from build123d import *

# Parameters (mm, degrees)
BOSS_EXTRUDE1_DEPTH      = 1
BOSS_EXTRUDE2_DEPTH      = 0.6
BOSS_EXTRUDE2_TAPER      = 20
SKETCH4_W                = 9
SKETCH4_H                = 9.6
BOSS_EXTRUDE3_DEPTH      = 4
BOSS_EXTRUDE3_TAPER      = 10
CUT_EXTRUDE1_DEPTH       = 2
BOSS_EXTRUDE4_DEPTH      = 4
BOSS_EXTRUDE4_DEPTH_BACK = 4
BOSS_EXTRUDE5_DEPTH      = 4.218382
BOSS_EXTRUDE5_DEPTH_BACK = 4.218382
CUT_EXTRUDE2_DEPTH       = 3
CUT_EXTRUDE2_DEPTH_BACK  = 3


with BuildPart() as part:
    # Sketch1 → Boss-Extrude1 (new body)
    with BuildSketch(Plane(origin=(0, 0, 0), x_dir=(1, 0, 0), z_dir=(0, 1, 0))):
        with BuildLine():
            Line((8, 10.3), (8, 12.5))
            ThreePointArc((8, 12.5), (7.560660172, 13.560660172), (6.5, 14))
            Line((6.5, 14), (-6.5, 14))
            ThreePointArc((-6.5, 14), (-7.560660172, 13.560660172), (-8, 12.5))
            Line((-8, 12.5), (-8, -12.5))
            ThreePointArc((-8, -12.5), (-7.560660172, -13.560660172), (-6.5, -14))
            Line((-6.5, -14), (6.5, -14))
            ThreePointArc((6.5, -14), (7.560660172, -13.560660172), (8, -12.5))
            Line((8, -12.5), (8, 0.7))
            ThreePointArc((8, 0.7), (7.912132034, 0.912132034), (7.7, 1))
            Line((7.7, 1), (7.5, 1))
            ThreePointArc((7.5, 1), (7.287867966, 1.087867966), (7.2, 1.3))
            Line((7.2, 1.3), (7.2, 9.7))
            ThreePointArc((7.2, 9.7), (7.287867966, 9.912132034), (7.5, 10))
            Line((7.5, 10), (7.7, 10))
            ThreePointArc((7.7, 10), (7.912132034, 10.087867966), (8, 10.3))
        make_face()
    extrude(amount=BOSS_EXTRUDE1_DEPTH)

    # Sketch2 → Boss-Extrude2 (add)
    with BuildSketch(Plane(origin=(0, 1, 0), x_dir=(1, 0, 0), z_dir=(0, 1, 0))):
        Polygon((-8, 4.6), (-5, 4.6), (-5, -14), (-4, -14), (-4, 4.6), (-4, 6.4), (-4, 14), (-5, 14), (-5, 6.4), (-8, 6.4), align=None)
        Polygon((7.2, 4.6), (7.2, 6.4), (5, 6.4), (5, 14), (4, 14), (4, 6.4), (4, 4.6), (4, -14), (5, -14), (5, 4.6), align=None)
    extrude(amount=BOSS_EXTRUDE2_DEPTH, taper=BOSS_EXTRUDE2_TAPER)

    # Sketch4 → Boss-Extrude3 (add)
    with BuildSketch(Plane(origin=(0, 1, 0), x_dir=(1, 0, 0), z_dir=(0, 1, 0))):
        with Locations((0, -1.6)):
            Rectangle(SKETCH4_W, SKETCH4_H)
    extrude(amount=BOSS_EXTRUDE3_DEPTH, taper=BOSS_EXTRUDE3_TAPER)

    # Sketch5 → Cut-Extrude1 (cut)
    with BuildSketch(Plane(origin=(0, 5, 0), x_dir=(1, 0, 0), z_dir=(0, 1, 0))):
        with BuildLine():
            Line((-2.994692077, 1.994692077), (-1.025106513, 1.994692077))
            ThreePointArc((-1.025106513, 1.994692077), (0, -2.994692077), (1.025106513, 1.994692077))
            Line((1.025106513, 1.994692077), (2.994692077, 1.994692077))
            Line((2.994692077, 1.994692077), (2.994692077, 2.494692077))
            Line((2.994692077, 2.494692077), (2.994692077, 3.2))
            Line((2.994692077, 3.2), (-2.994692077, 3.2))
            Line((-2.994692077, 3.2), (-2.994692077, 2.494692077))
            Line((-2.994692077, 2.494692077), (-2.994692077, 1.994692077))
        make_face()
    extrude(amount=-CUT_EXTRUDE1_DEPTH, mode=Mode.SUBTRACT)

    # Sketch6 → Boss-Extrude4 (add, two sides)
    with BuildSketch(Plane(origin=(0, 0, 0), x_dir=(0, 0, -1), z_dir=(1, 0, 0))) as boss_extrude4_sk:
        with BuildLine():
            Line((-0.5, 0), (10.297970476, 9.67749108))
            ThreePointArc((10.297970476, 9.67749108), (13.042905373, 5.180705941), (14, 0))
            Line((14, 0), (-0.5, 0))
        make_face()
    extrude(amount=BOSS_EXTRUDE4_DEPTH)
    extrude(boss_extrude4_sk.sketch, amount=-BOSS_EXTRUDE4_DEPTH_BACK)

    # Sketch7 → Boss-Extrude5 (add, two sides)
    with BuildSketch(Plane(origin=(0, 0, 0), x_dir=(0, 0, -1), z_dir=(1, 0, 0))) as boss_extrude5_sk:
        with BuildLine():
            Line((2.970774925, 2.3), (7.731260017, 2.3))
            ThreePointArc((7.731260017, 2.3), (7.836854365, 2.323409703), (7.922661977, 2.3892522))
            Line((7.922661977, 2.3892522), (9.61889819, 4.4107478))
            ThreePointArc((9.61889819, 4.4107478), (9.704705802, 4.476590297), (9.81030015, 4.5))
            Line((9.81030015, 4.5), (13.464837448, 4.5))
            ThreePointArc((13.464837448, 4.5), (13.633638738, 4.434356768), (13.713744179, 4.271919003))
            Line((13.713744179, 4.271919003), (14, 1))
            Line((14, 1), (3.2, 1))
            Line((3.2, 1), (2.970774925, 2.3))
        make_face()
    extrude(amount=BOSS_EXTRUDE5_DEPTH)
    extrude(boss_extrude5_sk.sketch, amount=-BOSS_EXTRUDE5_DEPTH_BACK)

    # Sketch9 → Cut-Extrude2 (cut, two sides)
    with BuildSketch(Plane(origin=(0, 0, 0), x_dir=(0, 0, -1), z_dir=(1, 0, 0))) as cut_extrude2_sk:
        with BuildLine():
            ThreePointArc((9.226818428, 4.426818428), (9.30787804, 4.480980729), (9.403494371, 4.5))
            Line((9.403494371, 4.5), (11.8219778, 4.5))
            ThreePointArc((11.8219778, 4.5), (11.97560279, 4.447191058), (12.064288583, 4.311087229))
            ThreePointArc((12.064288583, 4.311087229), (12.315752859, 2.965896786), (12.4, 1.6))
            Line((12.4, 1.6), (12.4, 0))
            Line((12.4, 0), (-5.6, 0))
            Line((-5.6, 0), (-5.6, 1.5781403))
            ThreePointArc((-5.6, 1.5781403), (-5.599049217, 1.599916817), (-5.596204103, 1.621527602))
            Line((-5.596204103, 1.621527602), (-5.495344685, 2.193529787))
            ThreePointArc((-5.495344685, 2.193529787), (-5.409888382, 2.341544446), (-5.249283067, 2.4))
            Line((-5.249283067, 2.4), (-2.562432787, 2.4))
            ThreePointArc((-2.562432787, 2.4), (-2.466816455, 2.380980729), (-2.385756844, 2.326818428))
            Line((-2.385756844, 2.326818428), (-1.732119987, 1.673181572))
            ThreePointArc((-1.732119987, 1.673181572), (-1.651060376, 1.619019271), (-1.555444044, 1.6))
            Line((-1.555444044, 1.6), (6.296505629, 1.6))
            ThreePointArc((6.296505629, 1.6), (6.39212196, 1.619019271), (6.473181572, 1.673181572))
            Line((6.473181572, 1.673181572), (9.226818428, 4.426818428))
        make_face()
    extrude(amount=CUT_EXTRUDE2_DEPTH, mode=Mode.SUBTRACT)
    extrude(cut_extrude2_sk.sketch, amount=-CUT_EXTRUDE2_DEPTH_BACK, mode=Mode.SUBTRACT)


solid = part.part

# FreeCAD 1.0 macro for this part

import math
import FreeCAD as App
import Part
import Sketcher
Q = App.Units.Quantity


def add_polygon(sketch, points):
    """Adds a closed chain of lines whose ends are joined by coincident constraints."""
    first, n = sketch.GeometryCount, len(points)
    for a, b in zip(points, points[1:] + points[:1]):
        sketch.addGeometry(Part.LineSegment(App.Vector(*a, 0), App.Vector(*b, 0)), False)
    for i in range(n):
        sketch.addConstraint(Sketcher.Constraint("Coincident", first + i, 2, first + (i + 1) % n, 1))

doc = App.newDocument("Part")
body = doc.addObject("PartDesign::Body", "Body")

sketch1 = doc.addObject("Sketcher::SketchObject", "Sketch")
body.addObject(sketch1)
sketch1.AttachmentSupport = (doc.XZ_Plane, [""])
sketch1.MapMode = "FlatFace"
sketch1.addGeometry([
    Part.LineSegment(App.Vector(8, -10.3, 0), App.Vector(8, -12.5, 0)),
    Part.ArcOfCircle(Part.Circle(App.Vector(6.5, -12.5, 0), App.Vector(0, 0, 1), 1.5), math.radians(-90), math.radians(0)),
    Part.LineSegment(App.Vector(6.5, -14, 0), App.Vector(-6.5, -14, 0)),
    Part.ArcOfCircle(Part.Circle(App.Vector(-6.5, -12.5, 0), App.Vector(0, 0, 1), 1.5), math.radians(180), math.radians(270)),
    Part.LineSegment(App.Vector(-8, -12.5, 0), App.Vector(-8, 12.5, 0)),
    Part.ArcOfCircle(Part.Circle(App.Vector(-6.5, 12.5, 0), App.Vector(0, 0, 1), 1.5), math.radians(90), math.radians(180)),
    Part.LineSegment(App.Vector(-6.5, 14, 0), App.Vector(6.5, 14, 0)),
    Part.ArcOfCircle(Part.Circle(App.Vector(6.5, 12.5, 0), App.Vector(0, 0, 1), 1.5), math.radians(0), math.radians(90)),
    Part.LineSegment(App.Vector(8, 12.5, 0), App.Vector(8, -0.7, 0)),
    Part.ArcOfCircle(Part.Circle(App.Vector(7.7, -0.7, 0), App.Vector(0, 0, 1), 0.3), math.radians(-90), math.radians(0)),
    Part.LineSegment(App.Vector(7.7, -1, 0), App.Vector(7.5, -1, 0)),
    Part.ArcOfCircle(Part.Circle(App.Vector(7.5, -1.3, 0), App.Vector(0, 0, 1), 0.3), math.radians(90), math.radians(180)),
    Part.LineSegment(App.Vector(7.2, -1.3, 0), App.Vector(7.2, -9.7, 0)),
    Part.ArcOfCircle(Part.Circle(App.Vector(7.5, -9.7, 0), App.Vector(0, 0, 1), 0.3), math.radians(-180), math.radians(-90)),
    Part.LineSegment(App.Vector(7.5, -10, 0), App.Vector(7.7, -10, 0)),
    Part.ArcOfCircle(Part.Circle(App.Vector(7.7, -10.3, 0), App.Vector(0, 0, 1), 0.3), math.radians(0), math.radians(90)),
], False)
sketch1.addConstraint([
    Sketcher.Constraint("Tangent", 0, 2, 1, 2),
    Sketcher.Constraint("Tangent", 1, 1, 2, 1),
    Sketcher.Constraint("Tangent", 2, 2, 3, 2),
    Sketcher.Constraint("Tangent", 3, 1, 4, 1),
    Sketcher.Constraint("Tangent", 4, 2, 5, 2),
    Sketcher.Constraint("Tangent", 5, 1, 6, 1),
    Sketcher.Constraint("Tangent", 6, 2, 7, 2),
    Sketcher.Constraint("Tangent", 7, 1, 8, 1),
    Sketcher.Constraint("Tangent", 8, 2, 9, 2),
    Sketcher.Constraint("Tangent", 9, 1, 10, 1),
    Sketcher.Constraint("Tangent", 10, 2, 11, 1),
    Sketcher.Constraint("Tangent", 11, 2, 12, 1),
    Sketcher.Constraint("Tangent", 12, 2, 13, 1),
    Sketcher.Constraint("Tangent", 13, 2, 14, 1),
    Sketcher.Constraint("Tangent", 14, 2, 15, 2),
    Sketcher.Constraint("Tangent", 15, 1, 0, 1),
    Sketcher.Constraint("Vertical", 0),
    Sketcher.Constraint("Horizontal", 2),
    Sketcher.Constraint("Vertical", 4),
    Sketcher.Constraint("Horizontal", 6),
    Sketcher.Constraint("Vertical", 8),
    Sketcher.Constraint("Horizontal", 10),
    Sketcher.Constraint("Vertical", 12),
    Sketcher.Constraint("Horizontal", 14),
    Sketcher.Constraint("Equal", 1, 3),
    Sketcher.Constraint("Equal", 3, 5),
    Sketcher.Constraint("Equal", 5, 7),
    Sketcher.Constraint("Equal", 9, 11),
    Sketcher.Constraint("Equal", 11, 13),
    Sketcher.Constraint("Equal", 13, 15),
    Sketcher.Constraint("Symmetric", 1, 3, 5, 3, -1, 1),
    Sketcher.Constraint("Vertical", 1, 3, 7, 3),
    Sketcher.Constraint("Radius", 1, Q("1.5 mm")),
    Sketcher.Constraint("Radius", 9, Q("0.3 mm")),
    Sketcher.Constraint("DistanceX", 2, 2, 2, 1, Q("13 mm")),
    Sketcher.Constraint("DistanceY", 4, 1, 4, 2, Q("25 mm")),
    Sketcher.Constraint("DistanceX", 10, 2, 10, 1, Q("0.2 mm")),
    Sketcher.Constraint("DistanceY", 0, 2, 0, 1, Q("2.2 mm")),
    Sketcher.Constraint("DistanceY", 8, 2, 8, 1, Q("13.2 mm")),
])
pad1 = doc.addObject("PartDesign::Pad", "Pad")
body.addObject(pad1)
pad1.Profile = sketch1
pad1.Length = 1
pad1.Reversed = True

sketch2 = doc.addObject("Sketcher::SketchObject", "Sketch001")
body.addObject(sketch2)
sketch2.AttachmentSupport = (doc.XZ_Plane, [""])
sketch2.MapMode = "FlatFace"
sketch2.AttachmentOffset = App.Placement(App.Vector(0, 0, -1), App.Rotation())
add_polygon(sketch2, [(-8, -4.6), (-5, -4.6), (-5, 14), (-4, 14), (-4, -14), (-5, -14), (-5, -6.4), (-8, -6.4)])
add_polygon(sketch2, [(7.2, -4.6), (7.2, -6.4), (5, -6.4), (5, -14), (4, -14), (4, 14), (5, 14), (5, -4.6)])
sketch2.addConstraint([
    Sketcher.Constraint("Horizontal", 0),
    Sketcher.Constraint("Vertical", 1),
    Sketcher.Constraint("Horizontal", 2),
    Sketcher.Constraint("Vertical", 3),
    Sketcher.Constraint("Horizontal", 4),
    Sketcher.Constraint("Vertical", 5),
    Sketcher.Constraint("Horizontal", 6),
    Sketcher.Constraint("Vertical", 7),
    Sketcher.Constraint("Vertical", 8),
    Sketcher.Constraint("Horizontal", 9),
    Sketcher.Constraint("Vertical", 10),
    Sketcher.Constraint("Horizontal", 11),
    Sketcher.Constraint("Vertical", 12),
    Sketcher.Constraint("Horizontal", 13),
    Sketcher.Constraint("Vertical", 14),
    Sketcher.Constraint("Horizontal", 15),
    Sketcher.Constraint("Symmetric", 1, 2, 10, 2, -1, 1),
    Sketcher.Constraint("Symmetric", 3, 2, 12, 2, -1, 1),
    Sketcher.Constraint("Symmetric", 5, 2, 9, 2, -2),
    Sketcher.Constraint("Symmetric", 1, 2, 13, 2, -2),
    Sketcher.Constraint("Horizontal", 7, 2, 14, 2),
    Sketcher.Constraint("DistanceX", 0, 1, 0, 2, Q("3 mm")),
    Sketcher.Constraint("DistanceX", 2, 1, 2, 2, Q("1 mm")),
    Sketcher.Constraint("DistanceY", 3, 2, 3, 1, Q("28 mm")),
    Sketcher.Constraint("DistanceX", 9, 2, 9, 1, Q("2.2 mm")),
    Sketcher.Constraint("DistanceY", 1, 1, 1, 2, Q("18.6 mm")),
    Sketcher.Constraint("DistanceY", 5, 1, 5, 2, Q("7.6 mm")),
    Sketcher.Constraint("DistanceX", 0, 2, -1, 1, Q("5 mm")),
])
pad2 = doc.addObject("PartDesign::Pad", "Pad001")
body.addObject(pad2)
pad2.Profile = sketch2
pad2.Length = 0.6
pad2.Reversed = True
pad2.TaperAngle = -20

sketch3 = doc.addObject("Sketcher::SketchObject", "Sketch002")
body.addObject(sketch3)
sketch3.AttachmentSupport = (doc.XZ_Plane, [""])
sketch3.MapMode = "FlatFace"
sketch3.AttachmentOffset = App.Placement(App.Vector(0, 0, -1), App.Rotation())
add_polygon(sketch3, [(-4.5, -3.2), (-4.5, 6.4), (4.5, 6.4), (4.5, -3.2)])
sketch3.addConstraint([
    Sketcher.Constraint("Vertical", 0),
    Sketcher.Constraint("Horizontal", 1),
    Sketcher.Constraint("Vertical", 2),
    Sketcher.Constraint("Horizontal", 3),
    Sketcher.Constraint("DistanceX", 1, 1, 1, 2, Q("9 mm")),
    Sketcher.Constraint("DistanceY", 0, 1, 0, 2, Q("9.6 mm")),
    Sketcher.Constraint("DistanceX", 0, 2, -1, 1, Q("4.5 mm")),
    Sketcher.Constraint("DistanceY", -1, 1, 0, 2, Q("6.4 mm")),
])
pad3 = doc.addObject("PartDesign::Pad", "Pad002")
body.addObject(pad3)
pad3.Profile = sketch3
pad3.Length = 4
pad3.Reversed = True
pad3.TaperAngle = -10

sketch4 = doc.addObject("Sketcher::SketchObject", "Sketch003")
body.addObject(sketch4)
sketch4.AttachmentSupport = (doc.XZ_Plane, [""])
sketch4.MapMode = "FlatFace"
sketch4.AttachmentOffset = App.Placement(App.Vector(0, 0, -5), App.Rotation())
sketch4.addGeometry([
    Part.LineSegment(App.Vector(-2.994692, -1.994692, 0), App.Vector(-1.025107, -1.994692, 0)),
    Part.ArcOfCircle(Part.Circle(App.Vector(0, 0.394692, 0), App.Vector(0, 0, 1), 2.6), math.radians(-66.779438), math.radians(246.779438)),
    Part.LineSegment(App.Vector(1.025107, -1.994692, 0), App.Vector(2.994692, -1.994692, 0)),
    Part.LineSegment(App.Vector(2.994692, -1.994692, 0), App.Vector(2.994692, -3.2, 0)),
    Part.LineSegment(App.Vector(2.994692, -3.2, 0), App.Vector(-2.994692, -3.2, 0)),
    Part.LineSegment(App.Vector(-2.994692, -3.2, 0), App.Vector(-2.994692, -1.994692, 0)),
], False)
sketch4.addConstraint([
    Sketcher.Constraint("Coincident", 0, 2, 1, 2),
    Sketcher.Constraint("Coincident", 1, 1, 2, 1),
    Sketcher.Constraint("Coincident", 2, 2, 3, 1),
    Sketcher.Constraint("Coincident", 3, 2, 4, 1),
    Sketcher.Constraint("Coincident", 4, 2, 5, 1),
    Sketcher.Constraint("Coincident", 5, 2, 0, 1),
    Sketcher.Constraint("Horizontal", 0),
    Sketcher.Constraint("Horizontal", 2),
    Sketcher.Constraint("Vertical", 3),
    Sketcher.Constraint("Horizontal", 4),
    Sketcher.Constraint("Vertical", 5),
    Sketcher.Constraint("Symmetric", 0, 2, 1, 1, -2),
    Sketcher.Constraint("Equal", 0, 2),
    Sketcher.Constraint("Radius", 1, Q("2.6 mm")),
    Sketcher.Constraint("DistanceY", 3, 2, -1, 1, Q("3.2 mm")),
    Sketcher.Constraint("DistanceX", 0, 2, 2, 2, Q("4.019799 mm")),
    Sketcher.Constraint("DistanceX", 0, 1, 0, 2, Q("1.969586 mm")),
    Sketcher.Constraint("DistanceY", 3, 2, 3, 1, Q("1.205308 mm")),
])
pocket1 = doc.addObject("PartDesign::Pocket", "Pocket")
body.addObject(pocket1)
pocket1.Profile = sketch4
pocket1.Length = 2
pocket1.Reversed = True

sketch5 = doc.addObject("Sketcher::SketchObject", "Sketch004")
body.addObject(sketch5)
sketch5.AttachmentSupport = (doc.YZ_Plane, [""])
sketch5.MapMode = "FlatFace"
sketch5.addGeometry([
    Part.LineSegment(App.Vector(9.677491, -10.29797, 0), App.Vector(0, 0.5, 0)),
    Part.LineSegment(App.Vector(0, 0.5, 0), App.Vector(0, -14, 0)),
    Part.ArcOfCircle(Part.Circle(App.Vector(0, 0.5, 0), App.Vector(0, 0, 1), 14.5), math.radians(-90), math.radians(-48.132275)),
], False)
sketch5.addConstraint([
    Sketcher.Constraint("Coincident", 0, 2, 1, 1),
    Sketcher.Constraint("Coincident", 1, 2, 2, 1),
    Sketcher.Constraint("Coincident", 2, 2, 0, 1),
    Sketcher.Constraint("Vertical", 1),
    Sketcher.Constraint("Coincident", 0, 2, 2, 3),
    Sketcher.Constraint("PointOnObject", 2, 3, -2),
    Sketcher.Constraint("Radius", 2, Q("14.5 mm")),
    Sketcher.Constraint("DistanceY", 1, 2, -1, 1, Q("14 mm")),
    Sketcher.Constraint("DistanceX", -1, 1, 2, 2, Q("9.677491 mm")),
])
pad4 = doc.addObject("PartDesign::Pad", "Pad003")
body.addObject(pad4)
pad4.Profile = sketch5
pad4.Type = "TwoLengths"
pad4.Length = 4
pad4.Length2 = 4

sketch6 = doc.addObject("Sketcher::SketchObject", "Sketch005")
body.addObject(sketch6)
sketch6.AttachmentSupport = (doc.YZ_Plane, [""])
sketch6.MapMode = "FlatFace"
sketch6.addGeometry([
    Part.LineSegment(App.Vector(2.3, -7.73126, 0), App.Vector(2.3, -2.970775, 0)),
    Part.LineSegment(App.Vector(2.3, -2.970775, 0), App.Vector(1, -3.2, 0)),
    Part.LineSegment(App.Vector(1, -3.2, 0), App.Vector(1, -14, 0)),
    Part.LineSegment(App.Vector(1, -14, 0), App.Vector(4.271919, -13.713744, 0)),
    Part.ArcOfCircle(Part.Circle(App.Vector(4.250142, -13.464837, 0), App.Vector(0, 0, 1), 0.249858), math.radians(-85), math.radians(0)),
    Part.LineSegment(App.Vector(4.5, -13.464837, 0), App.Vector(4.5, -9.8103, 0)),
    Part.ArcOfCircle(Part.Circle(App.Vector(4.250142, -9.8103, 0), App.Vector(0, 0, 1), 0.249858), math.radians(0), math.radians(50)),
    Part.LineSegment(App.Vector(4.410748, -9.618898, 0), App.Vector(2.389252, -7.922662, 0)),
    Part.ArcOfCircle(Part.Circle(App.Vector(2.549858, -7.73126, 0), App.Vector(0, 0, 1), 0.249858), math.radians(180), math.radians(230)),
], False)
sketch6.addConstraint([
    Sketcher.Constraint("Coincident", 0, 2, 1, 1),
    Sketcher.Constraint("Coincident", 1, 2, 2, 1),
    Sketcher.Constraint("Coincident", 2, 2, 3, 1),
    Sketcher.Constraint("Tangent", 3, 2, 4, 1),
    Sketcher.Constraint("Tangent", 4, 2, 5, 1),
    Sketcher.Constraint("Tangent", 5, 2, 6, 1),
    Sketcher.Constraint("Tangent", 6, 2, 7, 1),
    Sketcher.Constraint("Tangent", 7, 2, 8, 2),
    Sketcher.Constraint("Tangent", 8, 1, 0, 1),
    Sketcher.Constraint("Vertical", 0),
    Sketcher.Constraint("Vertical", 2),
    Sketcher.Constraint("Vertical", 5),
    Sketcher.Constraint("Equal", 4, 6),
    Sketcher.Constraint("Equal", 6, 8),
    Sketcher.Constraint("Angle", 1, Q("-170 deg")),
    Sketcher.Constraint("Angle", 3, Q("5 deg")),
    Sketcher.Constraint("Angle", 7, Q("140 deg")),
    Sketcher.Constraint("DistanceY", 2, 2, 2, 1, Q("10.8 mm")),
    Sketcher.Constraint("DistanceX", -1, 1, 1, 2, Q("1 mm")),
    Sketcher.Constraint("DistanceY", 2, 2, -1, 1, Q("14 mm")),
    Sketcher.Constraint("DistanceX", -1, 1, 0, 2, Q("2.3 mm")),
    Sketcher.Constraint("DistanceX", -1, 1, 4, 2, Q("4.5 mm")),
    Sketcher.Constraint("Radius", 4, Q("0.249858 mm")),
    Sketcher.Constraint("DistanceY", 6, 3, -1, 1, Q("9.8103 mm")),
])
pad5 = doc.addObject("PartDesign::Pad", "Pad004")
body.addObject(pad5)
pad5.Profile = sketch6
pad5.Type = "TwoLengths"
pad5.Length = 4.218382
pad5.Length2 = 4.218382

sketch7 = doc.addObject("Sketcher::SketchObject", "Sketch006")
body.addObject(sketch7)
sketch7.AttachmentSupport = (doc.YZ_Plane, [""])
sketch7.MapMode = "FlatFace"
sketch7.addGeometry([
    Part.ArcOfCircle(Part.Circle(App.Vector(4.250142, -9.403494, 0), App.Vector(0, 0, 1), 0.249858), math.radians(0), math.radians(45)),
    Part.LineSegment(App.Vector(4.426818, -9.226818, 0), App.Vector(1.673182, -6.473182, 0)),
    Part.ArcOfCircle(Part.Circle(App.Vector(1.849858, -6.296506, 0), App.Vector(0, 0, 1), 0.249858), math.radians(-180), math.radians(-135)),
    Part.LineSegment(App.Vector(1.6, -6.296506, 0), App.Vector(1.6, 1.555444, 0)),
    Part.ArcOfCircle(Part.Circle(App.Vector(1.849858, 1.555444, 0), App.Vector(0, 0, 1), 0.249858), math.radians(135), math.radians(180)),
    Part.LineSegment(App.Vector(1.673182, 1.73212, 0), App.Vector(2.326818, 2.385757, 0)),
    Part.ArcOfCircle(Part.Circle(App.Vector(2.150142, 2.562433, 0), App.Vector(0, 0, 1), 0.249858), math.radians(-45), math.radians(0)),
    Part.LineSegment(App.Vector(2.4, 2.562433, 0), App.Vector(2.4, 5.249283, 0)),
    Part.ArcOfCircle(Part.Circle(App.Vector(2.150142, 5.249283, 0), App.Vector(0, 0, 1), 0.249858), math.radians(0), math.radians(80)),
    Part.LineSegment(App.Vector(2.19353, 5.495345, 0), App.Vector(1.621528, 5.596204, 0)),
    Part.ArcOfCircle(Part.Circle(App.Vector(1.57814, 5.350143, 0), App.Vector(0, 0, 1), 0.249857), math.radians(79.999999), math.radians(90.000001)),
    Part.LineSegment(App.Vector(1.57814, 5.6, 0), App.Vector(0, 5.6, 0)),
    Part.LineSegment(App.Vector(0, 5.6, 0), App.Vector(0, -12.4, 0)),
    Part.LineSegment(App.Vector(0, -12.4, 0), App.Vector(1.6, -12.4, 0)),
    Part.ArcOfCircle(Part.Circle(App.Vector(1.6, -1.285251, 0), App.Vector(0, 0, 1), 11.114749), math.radians(-90), math.radians(-75.8821)),
    Part.ArcOfCircle(Part.Circle(App.Vector(4.250142, -11.821978, 0), App.Vector(0, 0, 1), 0.249858), math.radians(-75.882101), math.radians(0)),
    Part.LineSegment(App.Vector(4.5, -11.821978, 0), App.Vector(4.5, -9.403494, 0)),
], False)
sketch7.addConstraint([
    Sketcher.Constraint("Tangent", 0, 2, 1, 1),
    Sketcher.Constraint("Tangent", 1, 2, 2, 2),
    Sketcher.Constraint("Tangent", 2, 1, 3, 1),
    Sketcher.Constraint("Tangent", 3, 2, 4, 2),
    Sketcher.Constraint("Tangent", 4, 1, 5, 1),
    Sketcher.Constraint("Tangent", 5, 2, 6, 1),
    Sketcher.Constraint("Tangent", 6, 2, 7, 1),
    Sketcher.Constraint("Tangent", 7, 2, 8, 1),
    Sketcher.Constraint("Tangent", 8, 2, 9, 1),
    Sketcher.Constraint("Tangent", 9, 2, 10, 1),
    Sketcher.Constraint("Tangent", 10, 2, 11, 1),
    Sketcher.Constraint("Coincident", 11, 2, 12, 1),
    Sketcher.Constraint("Coincident", 12, 2, 13, 1),
    Sketcher.Constraint("Tangent", 13, 2, 14, 1),
    Sketcher.Constraint("Tangent", 14, 2, 15, 1),
    Sketcher.Constraint("Tangent", 15, 2, 16, 1),
    Sketcher.Constraint("Tangent", 16, 2, 0, 1),
    Sketcher.Constraint("Vertical", 3),
    Sketcher.Constraint("Vertical", 7),
    Sketcher.Constraint("Horizontal", 11),
    Sketcher.Constraint("Vertical", 12),
    Sketcher.Constraint("Horizontal", 13),
    Sketcher.Constraint("Vertical", 16),
    Sketcher.Constraint("Equal", 0, 2),
    Sketcher.Constraint("Equal", 2, 4),
    Sketcher.Constraint("Equal", 4, 6),
    Sketcher.Constraint("Equal", 6, 8),
    Sketcher.Constraint("Equal", 8, 10),
    Sketcher.Constraint("Equal", 10, 15),
    Sketcher.Constraint("PointOnObject", 11, 2, -2),
    Sketcher.Constraint("Perpendicular", 1, 5),
    Sketcher.Constraint("Vertical", 14, 3, 2, 1),
    Sketcher.Constraint("Vertical", 1, 2, 4, 1),
    Sketcher.Constraint("DistanceY", 12, 2, 12, 1, Q("18 mm")),
    Sketcher.Constraint("Angle", 9, Q("170 deg")),
    Sketcher.Constraint("DistanceX", 13, 1, 13, 2, Q("1.6 mm")),
    Sketcher.Constraint("DistanceX", -1, 1, 6, 2, Q("2.4 mm")),
    Sketcher.Constraint("DistanceY", -1, 1, 10, 2, Q("5.6 mm")),
    Sketcher.Constraint("DistanceX", -1, 1, 15, 2, Q("4.5 mm")),
    Sketcher.Constraint("Radius", 14, Q("11.114749 mm")),
    Sketcher.Constraint("Radius", 0, Q("0.249858 mm")),
    Sketcher.Constraint("DistanceX", 11, 2, 11, 1, Q("1.57814 mm")),
    Sketcher.Constraint("DistanceY", 3, 1, 3, 2, Q("7.85195 mm")),
    Sketcher.Constraint("DistanceY", 7, 1, 7, 2, Q("2.68685 mm")),
])
pocket2 = doc.addObject("PartDesign::Pocket", "Pocket001")
body.addObject(pocket2)
pocket2.Profile = sketch7
pocket2.Type = "TwoLengths"
pocket2.Length = 3
pocket2.Length2 = 3
pocket2.Reversed = True

doc.recompute()
